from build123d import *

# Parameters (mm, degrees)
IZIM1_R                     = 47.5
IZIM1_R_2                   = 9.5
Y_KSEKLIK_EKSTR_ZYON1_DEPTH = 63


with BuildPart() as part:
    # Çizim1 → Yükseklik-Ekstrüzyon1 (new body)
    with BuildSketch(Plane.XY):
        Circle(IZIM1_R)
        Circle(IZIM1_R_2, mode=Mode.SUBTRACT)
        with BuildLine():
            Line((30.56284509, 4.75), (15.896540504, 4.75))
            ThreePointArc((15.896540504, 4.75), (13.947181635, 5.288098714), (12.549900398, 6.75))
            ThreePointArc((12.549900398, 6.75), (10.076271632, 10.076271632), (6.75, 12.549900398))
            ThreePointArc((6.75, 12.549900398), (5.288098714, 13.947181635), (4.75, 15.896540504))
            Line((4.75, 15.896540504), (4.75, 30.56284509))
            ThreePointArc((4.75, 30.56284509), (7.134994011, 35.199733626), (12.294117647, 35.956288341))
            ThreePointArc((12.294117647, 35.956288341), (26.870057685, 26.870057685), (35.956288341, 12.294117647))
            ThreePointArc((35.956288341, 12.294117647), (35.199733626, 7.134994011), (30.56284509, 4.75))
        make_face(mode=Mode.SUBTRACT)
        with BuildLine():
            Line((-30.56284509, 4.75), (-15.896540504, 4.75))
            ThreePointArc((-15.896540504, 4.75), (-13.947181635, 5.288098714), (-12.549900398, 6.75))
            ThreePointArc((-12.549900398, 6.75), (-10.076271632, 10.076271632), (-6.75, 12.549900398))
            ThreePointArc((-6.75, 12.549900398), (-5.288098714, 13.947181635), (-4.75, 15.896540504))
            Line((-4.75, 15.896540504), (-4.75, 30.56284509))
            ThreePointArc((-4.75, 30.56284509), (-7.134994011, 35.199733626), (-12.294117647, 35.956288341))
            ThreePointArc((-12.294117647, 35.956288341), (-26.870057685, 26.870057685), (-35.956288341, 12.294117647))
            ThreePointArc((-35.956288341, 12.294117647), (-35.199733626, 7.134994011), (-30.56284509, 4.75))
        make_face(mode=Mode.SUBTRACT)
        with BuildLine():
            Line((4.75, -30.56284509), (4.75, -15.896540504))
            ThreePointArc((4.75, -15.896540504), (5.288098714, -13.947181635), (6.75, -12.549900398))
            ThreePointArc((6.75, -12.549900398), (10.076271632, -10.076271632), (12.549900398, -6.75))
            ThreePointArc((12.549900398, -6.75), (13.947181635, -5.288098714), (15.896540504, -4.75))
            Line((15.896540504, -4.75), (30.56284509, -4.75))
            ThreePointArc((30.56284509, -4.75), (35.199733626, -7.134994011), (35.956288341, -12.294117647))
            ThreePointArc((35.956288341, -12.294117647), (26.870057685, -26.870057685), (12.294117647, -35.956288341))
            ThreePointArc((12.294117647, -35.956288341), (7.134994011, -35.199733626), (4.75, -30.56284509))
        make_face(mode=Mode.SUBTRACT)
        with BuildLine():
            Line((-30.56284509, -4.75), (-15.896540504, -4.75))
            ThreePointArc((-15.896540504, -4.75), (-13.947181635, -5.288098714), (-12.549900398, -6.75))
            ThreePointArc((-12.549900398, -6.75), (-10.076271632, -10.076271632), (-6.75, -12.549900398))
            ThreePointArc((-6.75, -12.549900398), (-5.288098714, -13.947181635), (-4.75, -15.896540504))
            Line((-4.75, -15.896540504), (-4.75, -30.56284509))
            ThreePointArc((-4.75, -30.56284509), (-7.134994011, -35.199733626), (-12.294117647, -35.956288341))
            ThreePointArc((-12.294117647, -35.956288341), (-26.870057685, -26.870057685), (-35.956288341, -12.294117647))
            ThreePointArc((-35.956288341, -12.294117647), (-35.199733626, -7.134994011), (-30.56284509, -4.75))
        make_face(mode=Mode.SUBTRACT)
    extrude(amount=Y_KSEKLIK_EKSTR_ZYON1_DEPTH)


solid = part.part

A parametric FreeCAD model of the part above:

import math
import FreeCAD as App
import Part
import Sketcher
from FreeCAD import Vector

doc = App.newDocument("Part")
params = doc.addObject("Spreadsheet::Sheet", "Params")
for row, (alias, value) in enumerate([
    ("sketch1_diameter", "95 mm"),
    ("sketch1_diameter2", "19 mm"),
    ("sketch1_radius", "38 mm"),
    ("sketch1_radius2", "5.7 mm"),
    ("sketch1_radius3", "3.8 mm"),
    ("pad1_length", "63 mm"),
], start=1):
    params.set(f"A{row}", alias)
    params.set(f"B{row}", "=" + value)
    params.setAlias(f"B{row}", alias)

body = doc.addObject("PartDesign::Body", "Body")

# Sketch on XY plane
sketch1 = body.newObject("Sketcher::SketchObject", "Sketch")
sketch1.AttachmentSupport = (doc.getObject("XY_Plane"), [""])
sketch1.MapMode = "FlatFace"
sketch1.addGeometry(Part.Circle(Vector(0, 0, 0), Vector(0, 0, 1), 47.5), False)
sketch1.addGeometry(Part.ArcOfCircle(Part.Circle(Vector(-30.6, -10.4, 0), Vector(0, 0, 1), 5.7), math.radians(90), math.radians(199)), False)
sketch1.addGeometry(Part.LineSegment(Vector(-30.6, -4.8, 0), Vector(-15.9, -4.8, 0)), False)
sketch1.addGeometry(Part.ArcOfCircle(Part.Circle(Vector(-15.9, -8.6, 0), Vector(0, 0, 1), 3.8), math.radians(28), math.radians(90)), False)
sketch1.addGeometry(Part.ArcOfCircle(Part.Circle(Vector(0, 0, 0), Vector(0, 0, 1), 14.2), math.radians(-152), math.radians(-118)), False)
sketch1.addGeometry(Part.ArcOfCircle(Part.Circle(Vector(-8.6, -15.9, 0), Vector(0, 0, 1), 3.8), math.radians(0), math.radians(62)), False)
sketch1.addGeometry(Part.LineSegment(Vector(-4.8, -15.9, 0), Vector(-4.8, -30.6, 0)), False)
sketch1.addGeometry(Part.ArcOfCircle(Part.Circle(Vector(-10.4, -30.6, 0), Vector(0, 0, 1), 5.7), math.radians(-109), math.radians(0)), False)
sketch1.addGeometry(Part.ArcOfCircle(Part.Circle(Vector(0, 0, 0), Vector(0, 0, 1), 38), math.radians(-161), math.radians(-109)), False)
sketch1.addGeometry(Part.ArcOfCircle(Part.Circle(Vector(10.4, -30.6, 0), Vector(0, 0, 1), 5.7), math.radians(180), math.radians(289)), False)
sketch1.addGeometry(Part.LineSegment(Vector(4.8, -30.6, 0), Vector(4.8, -15.9, 0)), False)
sketch1.addGeometry(Part.ArcOfCircle(Part.Circle(Vector(8.6, -15.9, 0), Vector(0, 0, 1), 3.8), math.radians(118), math.radians(180)), False)
sketch1.addGeometry(Part.ArcOfCircle(Part.Circle(Vector(0, 0, 0), Vector(0, 0, 1), 14.2), math.radians(-62), math.radians(-28)), False)
sketch1.addGeometry(Part.ArcOfCircle(Part.Circle(Vector(15.9, -8.6, 0), Vector(0, 0, 1), 3.8), math.radians(90), math.radians(152)), False)
sketch1.addGeometry(Part.LineSegment(Vector(15.9, -4.8, 0), Vector(30.6, -4.8, 0)), False)
sketch1.addGeometry(Part.ArcOfCircle(Part.Circle(Vector(30.6, -10.4, 0), Vector(0, 0, 1), 5.7), math.radians(-19), math.radians(90)), False)
sketch1.addGeometry(Part.ArcOfCircle(Part.Circle(Vector(0, 0, 0), Vector(0, 0, 1), 38), math.radians(-71), math.radians(-19)), False)
sketch1.addGeometry(Part.LineSegment(Vector(-15.9, 4.8, 0), Vector(-30.6, 4.8, 0)), False)
sketch1.addGeometry(Part.ArcOfCircle(Part.Circle(Vector(-30.6, 10.4, 0), Vector(0, 0, 1), 5.7), math.radians(161), math.radians(270)), False)
sketch1.addGeometry(Part.ArcOfCircle(Part.Circle(Vector(0, 0, 0), Vector(0, 0, 1), 38), math.radians(109), math.radians(161)), False)
sketch1.addGeometry(Part.ArcOfCircle(Part.Circle(Vector(-10.4, 30.6, 0), Vector(0, 0, 1), 5.7), math.radians(0), math.radians(109)), False)
sketch1.addGeometry(Part.LineSegment(Vector(-4.8, 30.6, 0), Vector(-4.8, 15.9, 0)), False)
sketch1.addGeometry(Part.ArcOfCircle(Part.Circle(Vector(-8.6, 15.9, 0), Vector(0, 0, 1), 3.8), math.radians(-62), math.radians(0)), False)
sketch1.addGeometry(Part.ArcOfCircle(Part.Circle(Vector(0, 0, 0), Vector(0, 0, 1), 14.2), math.radians(118), math.radians(152)), False)
sketch1.addGeometry(Part.ArcOfCircle(Part.Circle(Vector(-15.9, 8.6, 0), Vector(0, 0, 1), 3.8), math.radians(-90), math.radians(-28)), False)
sketch1.addGeometry(Part.Circle(Vector(0, 0, 0), Vector(0, 0, 1), 9.5), False)
sketch1.addGeometry(Part.ArcOfCircle(Part.Circle(Vector(30.6, 10.4, 0), Vector(0, 0, 1), 5.7), math.radians(-90), math.radians(19)), False)
sketch1.addGeometry(Part.LineSegment(Vector(30.6, 4.8, 0), Vector(15.9, 4.8, 0)), False)
sketch1.addGeometry(Part.ArcOfCircle(Part.Circle(Vector(15.9, 8.6, 0), Vector(0, 0, 1), 3.8), math.radians(-152), math.radians(-90)), False)
sketch1.addGeometry(Part.ArcOfCircle(Part.Circle(Vector(0, 0, 0), Vector(0, 0, 1), 14.2), math.radians(28), math.radians(62)), False)
sketch1.addGeometry(Part.ArcOfCircle(Part.Circle(Vector(8.6, 15.9, 0), Vector(0, 0, 1), 3.8), math.radians(180), math.radians(242)), False)
sketch1.addGeometry(Part.LineSegment(Vector(4.8, 15.9, 0), Vector(4.8, 30.6, 0)), False)
sketch1.addGeometry(Part.ArcOfCircle(Part.Circle(Vector(10.4, 30.6, 0), Vector(0, 0, 1), 5.7), math.radians(71), math.radians(180)), False)
sketch1.addGeometry(Part.ArcOfCircle(Part.Circle(Vector(0, 0, 0), Vector(0, 0, 1), 38), math.radians(19), math.radians(71)), False)
sketch1.addConstraint(Sketcher.Constraint("Tangent", 1, 1, 2, 1))
sketch1.addConstraint(Sketcher.Constraint("Tangent", 2, 2, 3, 2))
sketch1.addConstraint(Sketcher.Constraint("Tangent", 3, 1, 4, 1))
sketch1.addConstraint(Sketcher.Constraint("Tangent", 4, 2, 5, 2))
sketch1.addConstraint(Sketcher.Constraint("Tangent", 5, 1, 6, 1))
sketch1.addConstraint(Sketcher.Constraint("Tangent", 6, 2, 7, 2))
sketch1.addConstraint(Sketcher.Constraint("Tangent", 7, 1, 8, 2))
sketch1.addConstraint(Sketcher.Constraint("Tangent", 8, 1, 1, 2))
sketch1.addConstraint(Sketcher.Constraint("Tangent", 9, 1, 10, 1))
sketch1.addConstraint(Sketcher.Constraint("Tangent", 10, 2, 11, 2))
sketch1.addConstraint(Sketcher.Constraint("Tangent", 11, 1, 12, 1))
sketch1.addConstraint(Sketcher.Constraint("Tangent", 12, 2, 13, 2))
sketch1.addConstraint(Sketcher.Constraint("Tangent", 13, 1, 14, 1))
sketch1.addConstraint(Sketcher.Constraint("Tangent", 14, 2, 15, 2))
sketch1.addConstraint(Sketcher.Constraint("Tangent", 15, 1, 16, 2))
sketch1.addConstraint(Sketcher.Constraint("Tangent", 16, 1, 9, 2))
sketch1.addConstraint(Sketcher.Constraint("Tangent", 17, 2, 18, 2))
sketch1.addConstraint(Sketcher.Constraint("Tangent", 18, 1, 19, 2))
sketch1.addConstraint(Sketcher.Constraint("Tangent", 19, 1, 20, 2))
sketch1.addConstraint(Sketcher.Constraint("Tangent", 20, 1, 21, 1))
sketch1.addConstraint(Sketcher.Constraint("Tangent", 21, 2, 22, 2))
sketch1.addConstraint(Sketcher.Constraint("Tangent", 22, 1, 23, 1))
sketch1.addConstraint(Sketcher.Constraint("Tangent", 23, 2, 24, 2))
sketch1.addConstraint(Sketcher.Constraint("Tangent", 24, 1, 17, 1))
sketch1.addConstraint(Sketcher.Constraint("Tangent", 26, 1, 27, 1))
sketch1.addConstraint(Sketcher.Constraint("Tangent", 27, 2, 28, 2))
sketch1.addConstraint(Sketcher.Constraint("Tangent", 28, 1, 29, 1))
sketch1.addConstraint(Sketcher.Constraint("Tangent", 29, 2, 30, 2))
sketch1.addConstraint(Sketcher.Constraint("Tangent", 30, 1, 31, 1))
sketch1.addConstraint(Sketcher.Constraint("Tangent", 31, 2, 32, 2))
sketch1.addConstraint(Sketcher.Constraint("Tangent", 32, 1, 33, 2))
sketch1.addConstraint(Sketcher.Constraint("Tangent", 33, 1, 26, 2))
sketch1.addConstraint(Sketcher.Constraint("Horizontal", 2))
sketch1.addConstraint(Sketcher.Constraint("Vertical", 6))
sketch1.addConstraint(Sketcher.Constraint("Vertical", 10))
sketch1.addConstraint(Sketcher.Constraint("Horizontal", 14))
sketch1.addConstraint(Sketcher.Constraint("Horizontal", 17))
sketch1.addConstraint(Sketcher.Constraint("Vertical", 21))
sketch1.addConstraint(Sketcher.Constraint("Horizontal", 27))
sketch1.addConstraint(Sketcher.Constraint("Vertical", 31))
sketch1.addConstraint(Sketcher.Constraint("Coincident", 0, 3, -1, 1))
sketch1.addConstraint(Sketcher.Constraint("Coincident", 4, 3, -1, 1))
sketch1.addConstraint(Sketcher.Constraint("Coincident", 8, 3, -1, 1))
sketch1.addConstraint(Sketcher.Constraint("Coincident", 12, 3, -1, 1))
sketch1.addConstraint(Sketcher.Constraint("Coincident", 16, 3, -1, 1))
sketch1.addConstraint(Sketcher.Constraint("Coincident", 19, 3, -1, 1))
sketch1.addConstraint(Sketcher.Constraint("Coincident", 23, 3, -1, 1))
sketch1.addConstraint(Sketcher.Constraint("Coincident", 25, 3, -1, 1))
sketch1.addConstraint(Sketcher.Constraint("Coincident", 29, 3, -1, 1))
sketch1.addConstraint(Sketcher.Constraint("Coincident", 33, 3, -1, 1))
sketch1.addConstraint(Sketcher.Constraint("Equal", 3, 5))
sketch1.addConstraint(Sketcher.Constraint("Equal", 1, 7))
sketch1.addConstraint(Sketcher.Constraint("Equal", 7, 9))
sketch1.addConstraint(Sketcher.Constraint("Equal", 5, 11))
sketch1.addConstraint(Sketcher.Constraint("Equal", 4, 12))
sketch1.addConstraint(Sketcher.Constraint("Equal", 11, 13))
sketch1.addConstraint(Sketcher.Constraint("Equal", 9, 15))
sketch1.addConstraint(Sketcher.Constraint("Equal", 8, 16))
sketch1.addConstraint(Sketcher.Constraint("Equal", 15, 18))
sketch1.addConstraint(Sketcher.Constraint("Equal", 16, 19))
sketch1.addConstraint(Sketcher.Constraint("Equal", 18, 20))
sketch1.addConstraint(Sketcher.Constraint("Equal", 13, 22))
sketch1.addConstraint(Sketcher.Constraint("Equal", 12, 23))
sketch1.addConstraint(Sketcher.Constraint("Equal", 22, 24))
sketch1.addConstraint(Sketcher.Constraint("Equal", 20, 26))
sketch1.addConstraint(Sketcher.Constraint("Equal", 24, 28))
sketch1.addConstraint(Sketcher.Constraint("Equal", 23, 29))
sketch1.addConstraint(Sketcher.Constraint("Equal", 28, 30))
sketch1.addConstraint(Sketcher.Constraint("Equal", 26, 32))
sketch1.addConstraint(Sketcher.Constraint("Equal", 19, 33))
sketch1.addConstraint(Sketcher.Constraint("Horizontal", 7, 3, 9, 3))
sketch1.addConstraint(Sketcher.Constraint("Horizontal", 3, 3, 13, 3))
sketch1.addConstraint(Sketcher.Constraint("Horizontal", 18, 3, 26, 3))
sketch1.addConstraint(Sketcher.Constraint("Horizontal", 22, 3, 30, 3))
sketch1.addConstraint(Sketcher.Constraint("Vertical", 1, 3, 18, 3))
sketch1.addConstraint(Sketcher.Constraint("Vertical", 7, 3, 20, 3))
sketch1.addConstraint(Sketcher.Constraint("Equal", 27, 6))
sketch1.addConstraint(Sketcher.Constraint("Diameter", 0, 95.0))
sketch1.addConstraint(Sketcher.Constraint("Diameter", 25, 19.0))
sketch1.addConstraint(Sketcher.Constraint("Radius", 8, 38.0))
sketch1.addConstraint(Sketcher.Constraint("Radius", 1, 5.7))
sketch1.addConstraint(Sketcher.Constraint("Radius", 3, 3.8))
sketch1.addConstraint(Sketcher.Constraint("Radius", 4, 14.25))
sketch1.addConstraint(Sketcher.Constraint("DistanceX", 5, 3, 9, 3, 19.0))
sketch1.setExpression("Constraints[77]", "Params.sketch1_diameter")
sketch1.setExpression("Constraints[78]", "Params.sketch1_diameter2")
sketch1.setExpression("Constraints[79]", "Params.sketch1_radius")
sketch1.setExpression("Constraints[80]", "Params.sketch1_radius2")
sketch1.setExpression("Constraints[81]", "Params.sketch1_radius3")
pad1 = body.newObject("PartDesign::Pad", "Pad")
pad1.Profile = sketch1
pad1.setExpression("Length", "Params.pad1_length")

doc.recompute()
